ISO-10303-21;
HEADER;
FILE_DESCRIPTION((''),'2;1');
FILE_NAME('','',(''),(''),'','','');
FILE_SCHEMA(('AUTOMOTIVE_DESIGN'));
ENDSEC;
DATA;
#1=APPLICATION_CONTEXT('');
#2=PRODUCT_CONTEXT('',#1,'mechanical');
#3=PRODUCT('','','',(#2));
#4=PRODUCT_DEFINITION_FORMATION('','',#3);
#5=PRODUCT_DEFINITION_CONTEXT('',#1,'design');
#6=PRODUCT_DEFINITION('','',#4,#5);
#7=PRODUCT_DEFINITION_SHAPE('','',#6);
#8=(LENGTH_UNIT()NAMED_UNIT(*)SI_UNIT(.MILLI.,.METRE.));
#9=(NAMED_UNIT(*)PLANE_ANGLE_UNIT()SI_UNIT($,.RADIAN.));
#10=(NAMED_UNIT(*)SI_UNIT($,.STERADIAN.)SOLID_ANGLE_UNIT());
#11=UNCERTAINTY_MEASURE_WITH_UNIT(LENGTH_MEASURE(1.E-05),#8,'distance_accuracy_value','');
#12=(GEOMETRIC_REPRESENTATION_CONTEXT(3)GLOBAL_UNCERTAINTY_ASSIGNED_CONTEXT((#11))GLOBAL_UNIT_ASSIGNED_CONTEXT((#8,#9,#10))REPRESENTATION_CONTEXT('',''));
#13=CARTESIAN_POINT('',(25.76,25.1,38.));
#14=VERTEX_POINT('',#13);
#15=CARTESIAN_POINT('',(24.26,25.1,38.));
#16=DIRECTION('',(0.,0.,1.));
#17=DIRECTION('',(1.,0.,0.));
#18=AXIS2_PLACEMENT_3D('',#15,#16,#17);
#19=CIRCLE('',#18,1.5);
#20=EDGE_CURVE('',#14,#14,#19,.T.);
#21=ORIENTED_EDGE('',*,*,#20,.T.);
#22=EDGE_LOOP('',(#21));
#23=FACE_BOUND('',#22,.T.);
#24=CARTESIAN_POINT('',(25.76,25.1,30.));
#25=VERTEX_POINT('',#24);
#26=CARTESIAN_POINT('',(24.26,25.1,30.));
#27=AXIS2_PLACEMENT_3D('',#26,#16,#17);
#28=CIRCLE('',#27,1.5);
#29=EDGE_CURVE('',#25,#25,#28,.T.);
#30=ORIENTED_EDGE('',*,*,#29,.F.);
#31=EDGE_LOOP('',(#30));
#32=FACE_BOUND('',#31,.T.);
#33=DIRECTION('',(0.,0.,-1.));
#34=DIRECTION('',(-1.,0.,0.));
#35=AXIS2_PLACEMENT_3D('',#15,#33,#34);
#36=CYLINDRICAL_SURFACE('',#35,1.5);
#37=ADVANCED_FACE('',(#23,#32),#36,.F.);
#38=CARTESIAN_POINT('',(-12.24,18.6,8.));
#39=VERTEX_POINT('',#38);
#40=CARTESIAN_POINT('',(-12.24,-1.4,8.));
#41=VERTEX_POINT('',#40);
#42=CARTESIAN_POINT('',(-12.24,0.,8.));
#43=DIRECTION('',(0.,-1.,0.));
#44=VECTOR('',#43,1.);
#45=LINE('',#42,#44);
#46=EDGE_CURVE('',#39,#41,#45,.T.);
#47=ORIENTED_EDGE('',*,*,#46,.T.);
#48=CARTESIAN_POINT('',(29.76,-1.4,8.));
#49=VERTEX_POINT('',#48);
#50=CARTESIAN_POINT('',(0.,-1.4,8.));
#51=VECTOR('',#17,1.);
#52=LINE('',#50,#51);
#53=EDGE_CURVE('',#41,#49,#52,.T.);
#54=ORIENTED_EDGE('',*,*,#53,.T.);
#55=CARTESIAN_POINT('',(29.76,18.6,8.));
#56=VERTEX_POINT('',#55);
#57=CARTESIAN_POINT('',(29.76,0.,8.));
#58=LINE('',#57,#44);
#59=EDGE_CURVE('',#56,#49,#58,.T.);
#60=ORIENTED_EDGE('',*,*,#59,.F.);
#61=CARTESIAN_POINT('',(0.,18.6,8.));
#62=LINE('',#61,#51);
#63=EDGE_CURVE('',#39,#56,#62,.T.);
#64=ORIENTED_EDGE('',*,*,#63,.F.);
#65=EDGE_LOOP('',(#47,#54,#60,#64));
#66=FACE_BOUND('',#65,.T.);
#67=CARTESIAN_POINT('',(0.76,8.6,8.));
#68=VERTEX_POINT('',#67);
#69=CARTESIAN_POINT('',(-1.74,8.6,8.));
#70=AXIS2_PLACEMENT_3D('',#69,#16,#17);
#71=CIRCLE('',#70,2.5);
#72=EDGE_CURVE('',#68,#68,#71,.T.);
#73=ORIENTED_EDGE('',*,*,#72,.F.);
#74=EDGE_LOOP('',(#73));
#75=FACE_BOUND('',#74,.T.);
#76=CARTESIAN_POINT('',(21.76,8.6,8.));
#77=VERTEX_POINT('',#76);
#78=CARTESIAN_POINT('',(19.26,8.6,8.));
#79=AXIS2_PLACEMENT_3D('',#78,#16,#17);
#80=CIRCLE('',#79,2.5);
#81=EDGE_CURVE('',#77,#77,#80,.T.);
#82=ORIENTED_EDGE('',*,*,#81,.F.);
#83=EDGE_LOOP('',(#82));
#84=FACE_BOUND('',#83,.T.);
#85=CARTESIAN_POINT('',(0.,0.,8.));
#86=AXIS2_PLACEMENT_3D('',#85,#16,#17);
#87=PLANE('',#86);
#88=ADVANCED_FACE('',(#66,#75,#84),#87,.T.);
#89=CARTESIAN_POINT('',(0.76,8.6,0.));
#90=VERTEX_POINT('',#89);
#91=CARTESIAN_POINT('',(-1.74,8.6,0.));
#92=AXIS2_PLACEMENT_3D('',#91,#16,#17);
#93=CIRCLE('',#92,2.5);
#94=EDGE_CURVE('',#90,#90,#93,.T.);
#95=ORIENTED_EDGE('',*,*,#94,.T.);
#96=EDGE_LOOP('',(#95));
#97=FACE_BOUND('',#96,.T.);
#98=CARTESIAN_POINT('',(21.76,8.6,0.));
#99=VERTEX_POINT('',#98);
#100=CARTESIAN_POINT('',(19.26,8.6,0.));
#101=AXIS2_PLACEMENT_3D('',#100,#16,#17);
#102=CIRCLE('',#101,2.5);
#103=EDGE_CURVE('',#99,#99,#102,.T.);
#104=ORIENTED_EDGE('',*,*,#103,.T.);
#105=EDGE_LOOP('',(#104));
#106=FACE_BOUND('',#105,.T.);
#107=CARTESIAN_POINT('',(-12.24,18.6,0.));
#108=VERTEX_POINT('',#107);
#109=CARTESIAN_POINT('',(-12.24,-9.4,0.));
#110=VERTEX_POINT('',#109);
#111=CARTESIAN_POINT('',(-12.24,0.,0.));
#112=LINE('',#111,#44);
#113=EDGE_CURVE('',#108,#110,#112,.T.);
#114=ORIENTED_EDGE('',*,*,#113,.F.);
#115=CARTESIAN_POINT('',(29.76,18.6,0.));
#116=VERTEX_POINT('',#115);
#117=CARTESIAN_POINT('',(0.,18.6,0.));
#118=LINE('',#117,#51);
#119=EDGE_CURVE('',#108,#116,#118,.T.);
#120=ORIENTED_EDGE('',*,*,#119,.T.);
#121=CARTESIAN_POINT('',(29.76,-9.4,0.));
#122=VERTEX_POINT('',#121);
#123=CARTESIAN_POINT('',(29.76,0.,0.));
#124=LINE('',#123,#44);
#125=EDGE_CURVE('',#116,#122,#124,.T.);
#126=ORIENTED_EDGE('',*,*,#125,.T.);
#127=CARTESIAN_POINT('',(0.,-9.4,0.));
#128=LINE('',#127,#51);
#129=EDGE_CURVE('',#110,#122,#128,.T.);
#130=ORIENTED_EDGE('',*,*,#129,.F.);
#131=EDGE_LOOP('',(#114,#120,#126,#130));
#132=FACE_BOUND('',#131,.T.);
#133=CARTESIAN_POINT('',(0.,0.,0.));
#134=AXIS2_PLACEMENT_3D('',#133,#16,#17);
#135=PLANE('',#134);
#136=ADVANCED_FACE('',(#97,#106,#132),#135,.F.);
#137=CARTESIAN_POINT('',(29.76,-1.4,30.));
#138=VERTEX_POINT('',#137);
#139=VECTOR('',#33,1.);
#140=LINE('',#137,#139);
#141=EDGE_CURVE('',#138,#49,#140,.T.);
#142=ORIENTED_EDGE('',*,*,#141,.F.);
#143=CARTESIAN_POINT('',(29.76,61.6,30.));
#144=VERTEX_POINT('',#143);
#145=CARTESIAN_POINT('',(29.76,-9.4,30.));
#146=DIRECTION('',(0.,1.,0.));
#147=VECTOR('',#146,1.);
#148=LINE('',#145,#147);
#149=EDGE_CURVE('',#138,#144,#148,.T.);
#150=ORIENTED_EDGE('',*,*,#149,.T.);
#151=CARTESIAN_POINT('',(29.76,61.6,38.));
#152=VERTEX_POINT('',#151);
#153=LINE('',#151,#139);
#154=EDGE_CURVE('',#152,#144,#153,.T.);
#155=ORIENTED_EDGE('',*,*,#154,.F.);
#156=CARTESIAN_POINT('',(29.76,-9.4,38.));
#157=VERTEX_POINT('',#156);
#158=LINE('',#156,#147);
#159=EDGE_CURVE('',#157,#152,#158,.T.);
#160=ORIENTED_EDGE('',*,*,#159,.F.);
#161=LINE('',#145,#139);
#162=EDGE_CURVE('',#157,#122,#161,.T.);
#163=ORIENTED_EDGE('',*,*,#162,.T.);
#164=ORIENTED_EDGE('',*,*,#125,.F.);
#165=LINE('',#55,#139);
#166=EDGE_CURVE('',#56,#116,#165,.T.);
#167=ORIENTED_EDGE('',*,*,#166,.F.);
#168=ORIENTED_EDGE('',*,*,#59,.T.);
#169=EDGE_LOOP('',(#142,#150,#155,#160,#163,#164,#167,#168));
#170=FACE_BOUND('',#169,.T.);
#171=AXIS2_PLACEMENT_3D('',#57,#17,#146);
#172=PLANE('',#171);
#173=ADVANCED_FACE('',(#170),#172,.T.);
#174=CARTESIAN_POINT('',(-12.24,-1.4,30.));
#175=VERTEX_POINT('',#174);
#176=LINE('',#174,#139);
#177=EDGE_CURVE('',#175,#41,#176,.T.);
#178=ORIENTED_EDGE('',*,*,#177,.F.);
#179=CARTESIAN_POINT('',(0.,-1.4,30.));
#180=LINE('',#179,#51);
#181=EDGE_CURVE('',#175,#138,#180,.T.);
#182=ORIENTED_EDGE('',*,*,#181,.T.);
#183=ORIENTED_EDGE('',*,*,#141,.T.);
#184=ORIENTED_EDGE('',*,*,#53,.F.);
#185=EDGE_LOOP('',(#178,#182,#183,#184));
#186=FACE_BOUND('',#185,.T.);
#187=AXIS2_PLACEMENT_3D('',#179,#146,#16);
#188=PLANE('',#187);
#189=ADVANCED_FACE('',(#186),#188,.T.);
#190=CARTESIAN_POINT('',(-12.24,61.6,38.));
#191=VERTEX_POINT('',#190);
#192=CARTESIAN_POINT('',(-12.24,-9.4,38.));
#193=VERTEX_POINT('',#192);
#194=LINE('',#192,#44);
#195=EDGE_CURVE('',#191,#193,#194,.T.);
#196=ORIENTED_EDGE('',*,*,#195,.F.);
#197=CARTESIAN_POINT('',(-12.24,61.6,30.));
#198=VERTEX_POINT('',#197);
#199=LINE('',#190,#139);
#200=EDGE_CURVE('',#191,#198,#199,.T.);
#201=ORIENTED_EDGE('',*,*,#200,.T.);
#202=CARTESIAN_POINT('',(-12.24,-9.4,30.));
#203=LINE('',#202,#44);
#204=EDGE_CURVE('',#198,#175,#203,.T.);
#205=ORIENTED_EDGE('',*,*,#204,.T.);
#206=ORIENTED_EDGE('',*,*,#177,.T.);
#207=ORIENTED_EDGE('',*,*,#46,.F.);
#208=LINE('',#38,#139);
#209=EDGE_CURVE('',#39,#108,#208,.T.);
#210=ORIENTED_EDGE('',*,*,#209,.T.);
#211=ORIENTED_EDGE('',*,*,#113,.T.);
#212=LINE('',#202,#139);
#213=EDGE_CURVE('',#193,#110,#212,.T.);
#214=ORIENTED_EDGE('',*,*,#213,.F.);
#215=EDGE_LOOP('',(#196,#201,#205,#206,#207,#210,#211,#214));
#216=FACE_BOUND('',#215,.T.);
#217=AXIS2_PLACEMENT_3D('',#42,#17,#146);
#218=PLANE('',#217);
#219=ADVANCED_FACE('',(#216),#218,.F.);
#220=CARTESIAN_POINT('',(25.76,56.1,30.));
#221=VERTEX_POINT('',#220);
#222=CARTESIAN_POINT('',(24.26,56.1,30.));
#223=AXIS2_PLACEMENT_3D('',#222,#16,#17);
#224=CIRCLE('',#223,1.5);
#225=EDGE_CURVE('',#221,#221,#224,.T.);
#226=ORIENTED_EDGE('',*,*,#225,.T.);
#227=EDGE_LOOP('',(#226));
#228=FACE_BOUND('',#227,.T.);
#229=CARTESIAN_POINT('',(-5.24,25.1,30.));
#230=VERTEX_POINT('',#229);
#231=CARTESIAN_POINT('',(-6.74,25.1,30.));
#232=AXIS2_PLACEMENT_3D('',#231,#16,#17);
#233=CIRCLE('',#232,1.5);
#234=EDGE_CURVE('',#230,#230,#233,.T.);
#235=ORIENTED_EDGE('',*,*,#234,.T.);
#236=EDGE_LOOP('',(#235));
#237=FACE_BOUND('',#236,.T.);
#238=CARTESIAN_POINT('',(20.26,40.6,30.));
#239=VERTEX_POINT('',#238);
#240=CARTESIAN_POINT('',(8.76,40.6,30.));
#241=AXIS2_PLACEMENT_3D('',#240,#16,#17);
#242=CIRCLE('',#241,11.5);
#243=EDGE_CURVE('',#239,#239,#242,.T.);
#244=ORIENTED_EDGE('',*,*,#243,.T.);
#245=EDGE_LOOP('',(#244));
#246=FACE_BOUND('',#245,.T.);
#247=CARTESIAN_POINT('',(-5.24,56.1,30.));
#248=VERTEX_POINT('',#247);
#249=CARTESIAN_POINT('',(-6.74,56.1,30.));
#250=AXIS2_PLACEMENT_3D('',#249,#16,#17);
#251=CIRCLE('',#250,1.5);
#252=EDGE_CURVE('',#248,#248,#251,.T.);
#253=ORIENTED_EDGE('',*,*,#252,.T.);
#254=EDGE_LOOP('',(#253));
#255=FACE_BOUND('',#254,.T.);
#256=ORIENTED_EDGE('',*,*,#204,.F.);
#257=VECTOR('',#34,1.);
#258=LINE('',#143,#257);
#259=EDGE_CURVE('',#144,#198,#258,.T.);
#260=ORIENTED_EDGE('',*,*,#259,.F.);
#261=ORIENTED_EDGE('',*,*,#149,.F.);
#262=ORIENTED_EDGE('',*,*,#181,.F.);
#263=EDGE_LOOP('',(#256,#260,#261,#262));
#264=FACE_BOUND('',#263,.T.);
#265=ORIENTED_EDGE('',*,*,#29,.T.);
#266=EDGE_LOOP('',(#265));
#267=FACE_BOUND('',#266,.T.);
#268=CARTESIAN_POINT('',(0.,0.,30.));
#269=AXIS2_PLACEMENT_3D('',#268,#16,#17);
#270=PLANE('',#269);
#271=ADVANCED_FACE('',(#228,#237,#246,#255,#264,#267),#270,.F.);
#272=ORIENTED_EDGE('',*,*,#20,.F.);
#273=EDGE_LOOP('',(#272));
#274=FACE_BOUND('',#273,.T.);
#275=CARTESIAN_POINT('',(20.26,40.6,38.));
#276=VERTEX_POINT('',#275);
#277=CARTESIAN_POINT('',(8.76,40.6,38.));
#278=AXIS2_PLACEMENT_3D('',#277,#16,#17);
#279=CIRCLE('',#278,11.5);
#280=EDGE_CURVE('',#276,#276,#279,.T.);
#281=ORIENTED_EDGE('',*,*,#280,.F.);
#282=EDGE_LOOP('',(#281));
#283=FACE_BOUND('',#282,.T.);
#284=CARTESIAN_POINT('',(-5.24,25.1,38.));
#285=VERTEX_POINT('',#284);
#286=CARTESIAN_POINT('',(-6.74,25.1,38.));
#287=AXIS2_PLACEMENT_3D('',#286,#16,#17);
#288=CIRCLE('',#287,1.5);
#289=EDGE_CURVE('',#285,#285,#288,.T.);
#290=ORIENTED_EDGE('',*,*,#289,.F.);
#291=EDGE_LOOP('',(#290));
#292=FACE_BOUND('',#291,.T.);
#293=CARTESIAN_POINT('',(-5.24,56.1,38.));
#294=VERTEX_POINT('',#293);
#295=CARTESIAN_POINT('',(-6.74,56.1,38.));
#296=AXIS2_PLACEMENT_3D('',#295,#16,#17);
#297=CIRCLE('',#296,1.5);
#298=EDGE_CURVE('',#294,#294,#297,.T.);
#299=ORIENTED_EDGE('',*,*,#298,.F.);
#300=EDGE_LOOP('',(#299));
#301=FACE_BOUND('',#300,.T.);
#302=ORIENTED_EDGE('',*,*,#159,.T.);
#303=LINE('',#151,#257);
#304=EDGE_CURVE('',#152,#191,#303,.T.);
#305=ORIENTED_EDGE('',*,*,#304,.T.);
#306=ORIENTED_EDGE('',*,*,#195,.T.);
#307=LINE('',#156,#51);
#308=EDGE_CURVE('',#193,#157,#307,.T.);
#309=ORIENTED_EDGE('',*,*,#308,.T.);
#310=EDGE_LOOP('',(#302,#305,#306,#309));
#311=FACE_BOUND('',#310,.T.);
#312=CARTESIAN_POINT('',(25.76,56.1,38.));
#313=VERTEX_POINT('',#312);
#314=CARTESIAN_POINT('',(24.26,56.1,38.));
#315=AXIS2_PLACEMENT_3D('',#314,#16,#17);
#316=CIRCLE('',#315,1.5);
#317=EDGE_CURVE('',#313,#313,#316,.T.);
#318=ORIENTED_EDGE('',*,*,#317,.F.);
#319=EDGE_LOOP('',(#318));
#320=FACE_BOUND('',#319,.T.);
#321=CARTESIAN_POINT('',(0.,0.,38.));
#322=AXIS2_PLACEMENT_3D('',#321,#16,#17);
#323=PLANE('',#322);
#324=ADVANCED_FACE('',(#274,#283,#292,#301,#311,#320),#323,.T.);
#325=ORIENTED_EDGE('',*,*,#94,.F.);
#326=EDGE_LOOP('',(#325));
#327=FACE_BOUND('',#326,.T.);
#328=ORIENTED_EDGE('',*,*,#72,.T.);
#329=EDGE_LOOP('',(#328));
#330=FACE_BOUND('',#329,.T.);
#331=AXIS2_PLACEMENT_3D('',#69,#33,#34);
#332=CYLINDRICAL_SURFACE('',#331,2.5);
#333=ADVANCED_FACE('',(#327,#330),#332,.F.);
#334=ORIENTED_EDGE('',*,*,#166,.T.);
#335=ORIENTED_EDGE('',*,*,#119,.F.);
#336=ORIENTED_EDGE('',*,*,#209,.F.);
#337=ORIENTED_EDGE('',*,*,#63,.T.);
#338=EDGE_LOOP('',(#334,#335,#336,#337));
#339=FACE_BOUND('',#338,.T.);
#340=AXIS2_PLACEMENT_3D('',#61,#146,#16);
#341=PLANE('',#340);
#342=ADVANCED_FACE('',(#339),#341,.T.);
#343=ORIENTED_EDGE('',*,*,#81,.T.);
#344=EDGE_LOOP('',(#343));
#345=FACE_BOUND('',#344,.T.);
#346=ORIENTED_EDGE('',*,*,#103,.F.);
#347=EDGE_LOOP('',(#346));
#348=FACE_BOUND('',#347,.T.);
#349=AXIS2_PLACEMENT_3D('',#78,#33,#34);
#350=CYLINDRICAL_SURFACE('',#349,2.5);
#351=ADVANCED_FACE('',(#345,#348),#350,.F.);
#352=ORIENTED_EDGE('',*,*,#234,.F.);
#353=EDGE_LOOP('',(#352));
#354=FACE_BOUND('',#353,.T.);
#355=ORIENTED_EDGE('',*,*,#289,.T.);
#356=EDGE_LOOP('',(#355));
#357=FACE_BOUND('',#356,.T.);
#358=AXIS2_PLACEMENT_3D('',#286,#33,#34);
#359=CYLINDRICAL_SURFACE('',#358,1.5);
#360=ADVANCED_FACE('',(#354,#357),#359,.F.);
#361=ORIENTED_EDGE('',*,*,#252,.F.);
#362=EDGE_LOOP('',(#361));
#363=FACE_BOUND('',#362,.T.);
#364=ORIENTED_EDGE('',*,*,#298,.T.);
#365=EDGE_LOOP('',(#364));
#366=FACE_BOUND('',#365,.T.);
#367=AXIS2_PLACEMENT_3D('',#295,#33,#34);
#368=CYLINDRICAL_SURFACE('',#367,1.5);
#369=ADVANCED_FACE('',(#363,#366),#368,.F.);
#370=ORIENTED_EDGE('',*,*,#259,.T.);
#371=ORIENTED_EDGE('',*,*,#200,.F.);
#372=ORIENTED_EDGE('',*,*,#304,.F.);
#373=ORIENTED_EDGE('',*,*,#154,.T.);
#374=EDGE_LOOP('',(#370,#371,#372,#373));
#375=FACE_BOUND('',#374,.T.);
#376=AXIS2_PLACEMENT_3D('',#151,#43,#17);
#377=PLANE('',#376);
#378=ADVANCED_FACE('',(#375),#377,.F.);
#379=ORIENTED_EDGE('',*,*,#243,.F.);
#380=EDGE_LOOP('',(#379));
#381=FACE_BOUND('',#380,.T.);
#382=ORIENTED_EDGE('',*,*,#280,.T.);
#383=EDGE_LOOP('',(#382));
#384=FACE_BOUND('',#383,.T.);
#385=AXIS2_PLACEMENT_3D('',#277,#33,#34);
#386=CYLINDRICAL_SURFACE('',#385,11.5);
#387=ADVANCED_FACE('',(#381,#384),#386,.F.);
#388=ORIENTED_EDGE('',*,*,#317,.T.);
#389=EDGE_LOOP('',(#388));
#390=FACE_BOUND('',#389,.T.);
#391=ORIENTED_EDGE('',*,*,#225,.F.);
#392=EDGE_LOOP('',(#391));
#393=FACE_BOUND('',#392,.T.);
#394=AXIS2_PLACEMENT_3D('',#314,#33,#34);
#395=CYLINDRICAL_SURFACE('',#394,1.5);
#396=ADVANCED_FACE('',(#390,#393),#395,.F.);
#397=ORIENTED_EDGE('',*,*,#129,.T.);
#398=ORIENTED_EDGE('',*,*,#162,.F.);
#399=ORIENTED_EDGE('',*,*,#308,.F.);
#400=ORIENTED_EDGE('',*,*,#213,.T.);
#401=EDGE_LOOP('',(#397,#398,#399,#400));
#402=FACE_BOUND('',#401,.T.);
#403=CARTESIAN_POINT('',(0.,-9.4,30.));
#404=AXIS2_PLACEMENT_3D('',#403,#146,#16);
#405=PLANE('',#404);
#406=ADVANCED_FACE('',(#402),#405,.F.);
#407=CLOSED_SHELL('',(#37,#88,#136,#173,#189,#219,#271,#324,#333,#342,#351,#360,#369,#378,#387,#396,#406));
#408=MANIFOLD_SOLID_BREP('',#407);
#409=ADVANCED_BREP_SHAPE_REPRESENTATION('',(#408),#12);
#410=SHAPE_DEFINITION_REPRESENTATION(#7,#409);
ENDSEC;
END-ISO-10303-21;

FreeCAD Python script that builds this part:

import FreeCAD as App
import Part
import Sketcher
Q = App.Units.Quantity


def add_polygon(sketch, points):
    """Adds a closed chain of lines whose ends are joined by coincident constraints."""
    first, n = sketch.GeometryCount, len(points)
    for a, b in zip(points, points[1:] + points[:1]):
        sketch.addGeometry(Part.LineSegment(App.Vector(*a, 0), App.Vector(*b, 0)), False)
    for i in range(n):
        sketch.addConstraint(Sketcher.Constraint("Coincident", first + i, 2, first + (i + 1) % n, 1))

doc = App.newDocument("Part")
body = doc.addObject("PartDesign::Body", "Body")

# Sketch on XY plane
sketch1 = body.newObject("Sketcher::SketchObject", "Sketch")
sketch1.AttachmentSupport = (doc.getObject("XY_Plane"), [""])
sketch1.MapMode = "FlatFace"
add_polygon(sketch1, [(-12.2, 18.6), (-12.2, -1.4), (29.8, -1.4), (29.8, 18.6)])  # lines 0-3
sketch1.addGeometry(Part.Circle(App.Vector(-1.7, 8.6, 0), App.Vector(0, 0, 1), 2.5), False)  # 4
sketch1.addGeometry(Part.Circle(App.Vector(19.3, 8.6, 0), App.Vector(0, 0, 1), 2.5), False)  # 5
sketch1.addConstraint(Sketcher.Constraint("Vertical", 0))
sketch1.addConstraint(Sketcher.Constraint("Horizontal", 1))
sketch1.addConstraint(Sketcher.Constraint("Vertical", 2))
sketch1.addConstraint(Sketcher.Constraint("Horizontal", 3))
sketch1.addConstraint(Sketcher.Constraint("Equal", 4, 5))
sketch1.addConstraint(Sketcher.Constraint("Horizontal", 4, 3, 5, 3))
sketch1.addConstraint(Sketcher.Constraint("Diameter", 4, Q("5 mm")))
sketch1.addConstraint(Sketcher.Constraint("DistanceX", 1, 1, 1, 2, Q("42 mm")))
sketch1.addConstraint(Sketcher.Constraint("DistanceY", 0, 2, 0, 1, Q("20 mm")))
sketch1.addConstraint(Sketcher.Constraint("DistanceX", 4, 3, 5, 3, Q("21 mm")))
sketch1.addConstraint(Sketcher.Constraint("DistanceY", 0, 2, 4, 3, Q("10 mm")))
sketch1.addConstraint(Sketcher.Constraint("DistanceY", -1, 1, 4, 3, Q("8.6 mm")))
sketch1.addConstraint(Sketcher.Constraint("DistanceX", 0, 2, 4, 3, Q("10.5 mm")))
sketch1.addConstraint(Sketcher.Constraint("DistanceX", 4, 3, -1, 1, Q("1.74 mm")))
pad1 = body.newObject("PartDesign::Pad", "Pad")
pad1.Profile = sketch1
pad1.Length = 8

# Sketch on XY plane
sketch2 = body.newObject("Sketcher::SketchObject", "Sketch001")
sketch2.AttachmentSupport = (doc.getObject("XY_Plane"), [""])
sketch2.MapMode = "FlatFace"
add_polygon(sketch2, [(-12, -1), (-12, -9), (30, -9), (30, -1)])  # lines 0-3
sketch2.addConstraint(Sketcher.Constraint("Vertical", 0))
sketch2.addConstraint(Sketcher.Constraint("Horizontal", 1))
sketch2.addConstraint(Sketcher.Constraint("Vertical", 2))
sketch2.addConstraint(Sketcher.Constraint("Horizontal", 3))
sketch2.addConstraint(Sketcher.Constraint("DistanceX", 1, 1, 1, 2, Q("42 mm")))
sketch2.addConstraint(Sketcher.Constraint("DistanceY", 0, 2, 0, 1, Q("8 mm")))
sketch2.addConstraint(Sketcher.Constraint("DistanceY", 0, 2, -1, 1, Q("9.4 mm")))
sketch2.addConstraint(Sketcher.Constraint("DistanceX", 0, 2, -1, 1, Q("12.24 mm")))
pad2 = body.newObject("PartDesign::Pad", "Pad001")
pad2.Profile = sketch2
pad2.Length = 30

# Sketch on XY plane
sketch3 = body.newObject("Sketcher::SketchObject", "Sketch002")
sketch3.AttachmentSupport = (doc.getObject("XY_Plane"), [""])
sketch3.MapMode = "FlatFace"
sketch3.AttachmentOffset = App.Placement(App.Vector(0, 0, 30), App.Rotation())
add_polygon(sketch3, [(-12.2, 61.6), (-12.2, -9.4), (29.8, -9.4), (29.8, 61.6)])  # lines 0-3
sketch3.addGeometry(Part.Circle(App.Vector(-6.7, 25.1, 0), App.Vector(0, 0, 1), 1.5), False)  # 4
sketch3.addGeometry(Part.Circle(App.Vector(24.3, 25.1, 0), App.Vector(0, 0, 1), 1.5), False)  # 5
sketch3.addGeometry(Part.Circle(App.Vector(-6.7, 56.1, 0), App.Vector(0, 0, 1), 1.5), False)  # 6
sketch3.addGeometry(Part.Circle(App.Vector(8.8, 40.6, 0), App.Vector(0, 0, 1), 11.5), False)  # 7
sketch3.addGeometry(Part.Circle(App.Vector(24.3, 56.1, 0), App.Vector(0, 0, 1), 1.5), False)  # 8
sketch3.addConstraint(Sketcher.Constraint("Vertical", 0))
sketch3.addConstraint(Sketcher.Constraint("Horizontal", 1))
sketch3.addConstraint(Sketcher.Constraint("Vertical", 2))
sketch3.addConstraint(Sketcher.Constraint("Horizontal", 3))
sketch3.addConstraint(Sketcher.Constraint("Equal", 4, 5))
sketch3.addConstraint(Sketcher.Constraint("Equal", 5, 6))
sketch3.addConstraint(Sketcher.Constraint("Equal", 6, 8))
sketch3.addConstraint(Sketcher.Constraint("Horizontal", 4, 3, 5, 3))
sketch3.addConstraint(Sketcher.Constraint("Horizontal", 6, 3, 8, 3))
sketch3.addConstraint(Sketcher.Constraint("Vertical", 4, 3, 6, 3))
sketch3.addConstraint(Sketcher.Constraint("Vertical", 5, 3, 8, 3))
sketch3.addConstraint(Sketcher.Constraint("Diameter", 4, Q("3 mm")))
sketch3.addConstraint(Sketcher.Constraint("Diameter", 7, Q("23 mm")))
sketch3.addConstraint(Sketcher.Constraint("DistanceX", 1, 1, 1, 2, Q("42 mm")))
sketch3.addConstraint(Sketcher.Constraint("DistanceY", 0, 2, 0, 1, Q("71 mm")))
sketch3.addConstraint(Sketcher.Constraint("DistanceX", 4, 3, 5, 3, Q("31 mm")))
sketch3.addConstraint(Sketcher.Constraint("DistanceY", 4, 3, 6, 3, Q("31 mm")))
sketch3.addConstraint(Sketcher.Constraint("DistanceX", 0, 2, 7, 3, Q("21 mm")))
sketch3.addConstraint(Sketcher.Constraint("DistanceY", 0, 2, 7, 3, Q("50 mm")))
sketch3.addConstraint(Sketcher.Constraint("DistanceY", -1, 1, 4, 3, Q("25.1 mm")))
sketch3.addConstraint(Sketcher.Constraint("DistanceY", -1, 1, 7, 3, Q("40.6 mm")))
sketch3.addConstraint(Sketcher.Constraint("DistanceX", 4, 3, 7, 3, Q("15.5 mm")))
sketch3.addConstraint(Sketcher.Constraint("DistanceX", 4, 3, -1, 1, Q("6.74 mm")))
pad3 = body.newObject("PartDesign::Pad", "Pad002")
pad3.Profile = sketch3
pad3.Length = 8

doc.recompute()
